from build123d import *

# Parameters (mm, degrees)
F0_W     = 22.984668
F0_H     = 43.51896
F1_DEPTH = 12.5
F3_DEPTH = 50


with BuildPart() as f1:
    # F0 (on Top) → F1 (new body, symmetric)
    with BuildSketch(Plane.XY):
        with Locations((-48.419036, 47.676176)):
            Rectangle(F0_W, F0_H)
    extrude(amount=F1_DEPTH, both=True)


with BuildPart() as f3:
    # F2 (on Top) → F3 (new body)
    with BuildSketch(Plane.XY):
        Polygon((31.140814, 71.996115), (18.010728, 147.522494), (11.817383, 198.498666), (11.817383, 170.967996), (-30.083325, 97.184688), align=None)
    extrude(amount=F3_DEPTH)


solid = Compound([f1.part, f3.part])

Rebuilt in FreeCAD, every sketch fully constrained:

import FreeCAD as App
import Part
import Sketcher
Q = App.Units.Quantity

doc = App.newDocument("Part")
params = doc.addObject("Spreadsheet::Sheet", "Params")
for row, (alias, value) in enumerate([
    ("pad1_length", "25 mm"),
    ("pad2_length", "50 mm"),
], start=1):
    params.set(f"A{row}", alias)
    params.set(f"B{row}", "=" + value)
    params.setAlias(f"B{row}", alias)

body = doc.addObject("PartDesign::Body", "Body")

# Sketch on XY plane
sketch1 = body.newObject("Sketcher::SketchObject", "Sketch")
sketch1.AttachmentSupport = (doc.getObject("XY_Plane"), [""])
sketch1.MapMode = "FlatFace"
sketch1.addGeometry([
    Part.LineSegment(App.Vector(-59.91137, 69.435656, 0), App.Vector(-59.91137, 25.916696, 0)),
    Part.LineSegment(App.Vector(-59.91137, 25.916696, 0), App.Vector(-36.926702, 25.916696, 0)),
    Part.LineSegment(App.Vector(-36.926702, 25.916696, 0), App.Vector(-36.926702, 69.435656, 0)),
    Part.LineSegment(App.Vector(-36.926702, 69.435656, 0), App.Vector(-59.91137, 69.435656, 0)),
], False)
sketch1.addConstraint([
    Sketcher.Constraint("Coincident", 0, 2, 1, 1),
    Sketcher.Constraint("Coincident", 1, 2, 2, 1),
    Sketcher.Constraint("Coincident", 2, 2, 3, 1),
    Sketcher.Constraint("Coincident", 3, 2, 0, 1),
    Sketcher.Constraint("Vertical", 0),
    Sketcher.Constraint("Horizontal", 1),
    Sketcher.Constraint("Vertical", 2),
    Sketcher.Constraint("Horizontal", 3),
    Sketcher.Constraint("DistanceY", 0, 2, 0, 1, Q("43.51896 mm")),
    Sketcher.Constraint("DistanceX", 1, 1, 1, 2, Q("22.984668 mm")),
    Sketcher.Constraint("DistanceX", 0, 2, -1, 1, Q("59.91137 mm")),
    Sketcher.Constraint("DistanceY", -1, 1, 0, 2, Q("25.916696 mm")),
])
pad1 = body.newObject("PartDesign::Pad", "Pad")
pad1.Profile = sketch1
pad1.setExpression("Length", "Params.pad1_length")
pad1.Midplane = True
body2 = doc.addObject("PartDesign::Body", "Body001")

# Sketch on XY plane
sketch2 = body2.newObject("Sketcher::SketchObject", "Sketch001")
sketch2.AttachmentSupport = (doc.getObject("XY_Plane001"), [""])
sketch2.MapMode = "FlatFace"
sketch2.addGeometry([
    Part.LineSegment(App.Vector(31.140814, 71.996115, 0), App.Vector(18.010728, 147.522494, 0)),  # 0
    Part.LineSegment(App.Vector(18.010728, 147.522494, 0), App.Vector(11.817383, 198.498666, 0)),  # 1
    Part.LineSegment(App.Vector(11.817383, 198.498666, 0), App.Vector(11.817383, 170.967996, 0)),  # 2
    Part.LineSegment(App.Vector(11.817383, 170.967996, 0), App.Vector(-30.083325, 97.184688, 0)),  # 3
    Part.LineSegment(App.Vector(-30.083325, 97.184688, 0), App.Vector(31.140814, 71.996115, 0)),  # 4
], False)
sketch2.addConstraint([
    Sketcher.Constraint("Coincident", 0, 2, 1, 1),
    Sketcher.Constraint("Coincident", 1, 2, 2, 1),
    Sketcher.Constraint("Coincident", 2, 2, 3, 1),
    Sketcher.Constraint("Coincident", 3, 2, 4, 1),
    Sketcher.Constraint("Coincident", 4, 2, 0, 1),
    Sketcher.Constraint("Vertical", 2),
    Sketcher.Constraint("Distance", 0, Q("76.659201 mm")),
    Sketcher.Constraint("DistanceY", 2, 2, 2, 1, Q("27.53067 mm")),
    Sketcher.Constraint("DistanceX", -1, 1, 0, 2, Q("18.010728 mm")),
    Sketcher.Constraint("DistanceY", 0, 2, 1, 2, Q("50.976172 mm")),
    Sketcher.Constraint("DistanceY", 3, 2, 2, 2, Q("73.783308 mm")),
    Sketcher.Constraint("DistanceX", 3, 2, 4, 2, Q("61.224139 mm")),
    Sketcher.Constraint("DistanceY", 4, 2, 0, 2, Q("75.526379 mm")),
    Sketcher.Constraint("DistanceX", 2, 2, 4, 2, Q("19.323431 mm")),
    Sketcher.Constraint("DistanceY", -1, 1, 0, 2, Q("147.522494 mm")),
])
pad2 = body2.newObject("PartDesign::Pad", "Pad001")
pad2.Profile = sketch2
pad2.setExpression("Length", "Params.pad2_length")

doc.recompute()
